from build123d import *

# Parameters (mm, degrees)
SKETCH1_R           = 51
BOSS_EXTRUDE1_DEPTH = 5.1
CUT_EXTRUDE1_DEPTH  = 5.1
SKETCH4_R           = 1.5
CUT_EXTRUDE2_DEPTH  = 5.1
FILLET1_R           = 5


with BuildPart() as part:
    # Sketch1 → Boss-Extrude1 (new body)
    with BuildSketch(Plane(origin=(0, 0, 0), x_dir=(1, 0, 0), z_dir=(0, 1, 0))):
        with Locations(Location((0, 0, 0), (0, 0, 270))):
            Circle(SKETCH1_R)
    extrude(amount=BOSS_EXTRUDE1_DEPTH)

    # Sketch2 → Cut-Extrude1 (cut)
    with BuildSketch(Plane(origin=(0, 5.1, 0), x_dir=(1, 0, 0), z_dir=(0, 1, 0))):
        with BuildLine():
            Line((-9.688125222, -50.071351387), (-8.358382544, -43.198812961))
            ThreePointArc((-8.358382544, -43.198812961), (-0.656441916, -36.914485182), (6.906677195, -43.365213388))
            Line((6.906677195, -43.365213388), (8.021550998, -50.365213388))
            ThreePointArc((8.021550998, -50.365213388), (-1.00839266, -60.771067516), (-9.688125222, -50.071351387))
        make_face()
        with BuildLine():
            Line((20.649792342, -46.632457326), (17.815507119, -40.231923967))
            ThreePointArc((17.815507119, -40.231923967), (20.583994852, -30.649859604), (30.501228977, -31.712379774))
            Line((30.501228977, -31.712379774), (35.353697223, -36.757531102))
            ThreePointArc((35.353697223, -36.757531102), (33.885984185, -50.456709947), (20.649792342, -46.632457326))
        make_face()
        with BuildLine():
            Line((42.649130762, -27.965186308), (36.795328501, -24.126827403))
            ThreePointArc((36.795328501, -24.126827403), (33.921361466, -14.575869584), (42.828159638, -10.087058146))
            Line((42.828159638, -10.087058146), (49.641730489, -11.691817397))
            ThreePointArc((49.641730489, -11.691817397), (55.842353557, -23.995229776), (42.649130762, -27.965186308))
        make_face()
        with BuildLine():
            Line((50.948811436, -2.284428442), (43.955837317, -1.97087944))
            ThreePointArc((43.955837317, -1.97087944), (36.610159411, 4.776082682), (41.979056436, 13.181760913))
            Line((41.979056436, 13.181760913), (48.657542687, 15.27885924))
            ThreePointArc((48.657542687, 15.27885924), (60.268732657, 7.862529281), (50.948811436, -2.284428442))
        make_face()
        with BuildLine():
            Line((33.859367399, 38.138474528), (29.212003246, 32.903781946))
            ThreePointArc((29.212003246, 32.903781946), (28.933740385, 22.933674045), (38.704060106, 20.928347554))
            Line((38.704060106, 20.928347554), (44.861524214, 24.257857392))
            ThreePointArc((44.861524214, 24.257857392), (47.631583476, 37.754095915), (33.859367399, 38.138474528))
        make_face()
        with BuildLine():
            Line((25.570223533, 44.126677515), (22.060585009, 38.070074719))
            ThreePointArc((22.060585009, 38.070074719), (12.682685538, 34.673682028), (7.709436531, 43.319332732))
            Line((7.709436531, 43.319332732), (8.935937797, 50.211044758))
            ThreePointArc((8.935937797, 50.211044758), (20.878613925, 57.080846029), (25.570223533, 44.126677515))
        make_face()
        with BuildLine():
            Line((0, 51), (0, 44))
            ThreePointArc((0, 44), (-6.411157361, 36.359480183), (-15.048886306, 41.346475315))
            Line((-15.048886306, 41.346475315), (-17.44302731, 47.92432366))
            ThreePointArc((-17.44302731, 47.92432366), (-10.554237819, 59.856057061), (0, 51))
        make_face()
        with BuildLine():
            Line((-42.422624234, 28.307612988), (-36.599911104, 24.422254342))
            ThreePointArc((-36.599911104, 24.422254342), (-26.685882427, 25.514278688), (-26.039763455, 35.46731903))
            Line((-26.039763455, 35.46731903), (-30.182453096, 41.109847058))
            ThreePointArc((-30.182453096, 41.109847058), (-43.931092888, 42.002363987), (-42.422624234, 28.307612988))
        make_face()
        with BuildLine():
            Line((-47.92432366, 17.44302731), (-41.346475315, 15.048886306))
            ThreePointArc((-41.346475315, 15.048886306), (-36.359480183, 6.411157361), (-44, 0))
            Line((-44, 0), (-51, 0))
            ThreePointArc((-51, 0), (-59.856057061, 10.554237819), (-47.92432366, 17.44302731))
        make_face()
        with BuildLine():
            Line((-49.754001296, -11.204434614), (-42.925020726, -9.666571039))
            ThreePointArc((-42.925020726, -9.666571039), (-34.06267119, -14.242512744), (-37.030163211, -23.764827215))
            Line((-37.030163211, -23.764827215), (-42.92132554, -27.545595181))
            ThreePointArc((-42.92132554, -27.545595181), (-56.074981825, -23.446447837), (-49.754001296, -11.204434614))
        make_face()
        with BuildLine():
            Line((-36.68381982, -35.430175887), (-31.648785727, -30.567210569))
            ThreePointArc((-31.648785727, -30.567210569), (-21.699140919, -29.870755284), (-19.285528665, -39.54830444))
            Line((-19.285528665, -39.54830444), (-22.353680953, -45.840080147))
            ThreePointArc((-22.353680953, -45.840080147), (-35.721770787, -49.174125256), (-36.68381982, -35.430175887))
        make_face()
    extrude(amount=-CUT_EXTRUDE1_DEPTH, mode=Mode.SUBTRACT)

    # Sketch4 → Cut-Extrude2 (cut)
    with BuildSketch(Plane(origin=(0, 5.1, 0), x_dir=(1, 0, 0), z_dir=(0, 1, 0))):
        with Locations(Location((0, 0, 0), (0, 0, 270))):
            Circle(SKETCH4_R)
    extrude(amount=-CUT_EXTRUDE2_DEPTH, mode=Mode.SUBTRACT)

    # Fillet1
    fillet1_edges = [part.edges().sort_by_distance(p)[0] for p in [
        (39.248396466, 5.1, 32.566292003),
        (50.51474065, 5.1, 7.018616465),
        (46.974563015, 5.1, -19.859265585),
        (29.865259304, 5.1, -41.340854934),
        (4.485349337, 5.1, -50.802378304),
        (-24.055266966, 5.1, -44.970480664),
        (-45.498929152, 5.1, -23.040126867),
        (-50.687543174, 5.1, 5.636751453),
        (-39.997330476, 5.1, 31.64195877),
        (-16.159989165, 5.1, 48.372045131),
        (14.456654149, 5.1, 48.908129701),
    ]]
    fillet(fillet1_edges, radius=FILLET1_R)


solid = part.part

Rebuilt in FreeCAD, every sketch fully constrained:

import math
import FreeCAD as App
import Part
import Sketcher

V = App.Vector
Q = App.Units.Quantity


def edges_at(feature, points):
    """Names of the edges that pass closest to the given points."""
    edges = feature.Shape.Edges
    near = lambda p: min(range(len(edges)), key=lambda i: edges[i].distToShape(Part.Vertex(*p))[0])
    return sorted({f"Edge{near(p) + 1}" for p in points})

doc = App.newDocument("Part")
body = doc.addObject("PartDesign::Body", "Body")

# Sketch on XZ plane
sketch1 = body.newObject("Sketcher::SketchObject", "Sketch")
sketch1.AttachmentSupport = (doc.getObject("XZ_Plane"), [""])
sketch1.MapMode = "FlatFace"
sketch1.addGeometry(Part.Circle(V(0, 0, 0), V(0, 0, 1), 51), False)
sketch1.addConstraint(Sketcher.Constraint("Coincident", 0, 3, -1, 1))
sketch1.addConstraint(Sketcher.Constraint("Diameter", 0, Q("102 mm")))
pad1 = body.newObject("PartDesign::Pad", "Pad")
pad1.Profile = sketch1
pad1.Length = 5.1
pad1.Reversed = True

# Sketch on XZ plane
sketch2 = body.newObject("Sketcher::SketchObject", "Sketch001")
sketch2.AttachmentSupport = (doc.getObject("XZ_Plane"), [""])
sketch2.MapMode = "FlatFace"
sketch2.AttachmentOffset = App.Placement(V(0, 0, -5.1), App.Rotation())
sketch2.addGeometry(Part.LineSegment(V(-8.358383, 43.198813, 0), V(-9.688125, 50.071351, 0)), False)
sketch2.addGeometry(Part.ArcOfCircle(Part.Circle(V(-0.859195, 51.779629, 0), V(0, 0, 1), 8.992676), math.radians(-9.049361), math.radians(190.950639)), False)
sketch2.addGeometry(Part.LineSegment(V(8.021551, 50.365213, 0), V(6.906677, 43.365213, 0)), False)
sketch2.addGeometry(Part.ArcOfCircle(Part.Circle(V(-0.741012, 44.672671, 0), V(0, 0, 1), 7.758646), math.radians(-169.049361), math.radians(-9.701556)), False)
sketch2.addGeometry(Part.LineSegment(V(17.815507, 40.231924, 0), V(20.649792, 46.632457, 0)), False)
sketch2.addGeometry(Part.ArcOfCircle(Part.Circle(V(28.872353, 42.991342, 0), V(0, 0, 1), 8.992676), math.radians(-43.884728), math.radians(156.115271)), False)
sketch2.addGeometry(Part.LineSegment(V(35.353697, 36.757531, 0), V(30.501229, 31.71238, 0)), False)
sketch2.addGeometry(Part.ArcOfCircle(Part.Circle(V(24.909481, 37.090569, 0), V(0, 0, 1), 7.758387), math.radians(156.115271), math.radians(316.115272)), False)
sketch2.addGeometry(Part.LineSegment(V(36.795329, 24.126827, 0), V(42.649131, 27.965186, 0)), False)
sketch2.addGeometry(Part.ArcOfCircle(Part.Circle(V(47.580148, 20.444994, 0), V(0, 0, 1), 8.992676), math.radians(-76.747002), math.radians(123.252998)), False)
sketch2.addGeometry(Part.LineSegment(V(49.64173, 11.691817, 0), V(42.82816, 10.087058, 0)), False)
sketch2.addGeometry(Part.ArcOfCircle(Part.Circle(V(41.049539, 17.638818, 0), V(0, 0, 1), 7.758387), math.radians(123.252998), math.radians(283.252998)), False)
sketch2.addGeometry(Part.LineSegment(V(43.955837, 1.970879, 0), V(50.948811, 2.284428, 0)), False)
sketch2.addGeometry(Part.ArcOfCircle(Part.Circle(V(51.351618, -6.699222, 0), V(0, 0, 1), 8.992676), math.radians(-107.432708), math.radians(92.567292)), False)
sketch2.addGeometry(Part.LineSegment(V(48.657543, -15.278859, 0), V(41.979056, -13.181761, 0)), False)
sketch2.addGeometry(Part.ArcOfCircle(Part.Circle(V(44.303357, -5.779721, 0), V(0, 0, 1), 7.758387), math.radians(92.567292), math.radians(252.567292)), False)
sketch2.addGeometry(Part.LineSegment(V(33.859367, -38.138475, 0), V(29.212003, -32.903782, 0)), False)
sketch2.addGeometry(Part.ArcOfCircle(Part.Circle(V(35.013828, -27.752918, 0), V(0, 0, 1), 7.758387), math.radians(61.598694), math.radians(221.598694)), False)
sketch2.addGeometry(Part.LineSegment(V(38.70406, -20.928348, 0), V(44.861524, -24.257857, 0)), False)
sketch2.addGeometry(Part.ArcOfCircle(Part.Circle(V(40.584209, -32.168155, 0), V(0, 0, 1), 8.992676), math.radians(-138.401306), math.radians(61.598694)), False)
sketch2.addGeometry(Part.LineSegment(V(22.060585, -38.070075, 0), V(25.570224, -44.126678, 0)), False)
sketch2.addGeometry(Part.ArcOfCircle(Part.Circle(V(17.7895, -48.635398, 0), V(0, 0, 1), 8.992676), math.radians(-169.908861), math.radians(30.091139)), False)
sketch2.addGeometry(Part.LineSegment(V(8.935938, -50.211045, 0), V(7.709437, -43.319333, 0)), False)
sketch2.addGeometry(Part.ArcOfCircle(Part.Circle(V(15.347804, -41.959951, 0), V(0, 0, 1), 7.758387), math.radians(30.091139), math.radians(190.091139)), False)
sketch2.addGeometry(Part.LineSegment(V(0, -44, 0), V(0, -51, 0)), False)
sketch2.addGeometry(Part.ArcOfCircle(Part.Circle(V(-8.992676, -51, 0), V(0, 0, 1), 8.992676), math.radians(160), math.radians(360)), False)
sketch2.addGeometry(Part.LineSegment(V(-17.443027, -47.924324, 0), V(-15.048886, -41.346475, 0)), False)
sketch2.addGeometry(Part.ArcOfCircle(Part.Circle(V(-7.758387, -44, 0), V(0, 0, 1), 7.758387), math.radians(0), math.radians(160)), False)
sketch2.addGeometry(Part.LineSegment(V(-42.422624, -28.307613, 0), V(-36.599911, -24.422254, 0)), False)
sketch2.addGeometry(Part.ArcOfCircle(Part.Circle(V(-32.293609, -30.875806, 0), V(0, 0, 1), 7.758387), math.radians(-36.285756), math.radians(123.714244)), False)
sketch2.addGeometry(Part.LineSegment(V(-26.039763, -35.467319, 0), V(-30.182453, -41.109847, 0)), False)
sketch2.addGeometry(Part.ArcOfCircle(Part.Circle(V(-37.431228, -35.787866, 0), V(0, 0, 1), 8.992676), math.radians(123.714244), math.radians(323.714244)), False)
sketch2.addGeometry(Part.LineSegment(V(-41.346475, -15.048886, 0), V(-47.924324, -17.443027, 0)), False)
sketch2.addGeometry(Part.ArcOfCircle(Part.Circle(V(-51, -8.992676, 0), V(0, 0, 1), 8.992676), math.radians(90), math.radians(290)), False)
sketch2.addGeometry(Part.LineSegment(V(-51, 0, 0), V(-44, 0, 0)), False)
sketch2.addGeometry(Part.ArcOfCircle(Part.Circle(V(-44, -7.758387, 0), V(0, 0, 1), 7.758387), math.radians(-70), math.radians(90)), False)
sketch2.addGeometry(Part.LineSegment(V(-42.925021, 9.666571, 0), V(-49.754001, 11.204435, 0)), False)
sketch2.addGeometry(Part.ArcOfCircle(Part.Circle(V(-47.778357, 19.977407, 0), V(0, 0, 1), 8.992676), math.radians(57.308892), math.radians(257.308892)), False)
sketch2.addGeometry(Part.LineSegment(V(-42.921326, 27.545595, 0), V(-37.030163, 23.764827, 0)), False)
sketch2.addGeometry(Part.ArcOfCircle(Part.Circle(V(-41.220543, 17.23541, 0), V(0, 0, 1), 7.758387), math.radians(-102.691108), math.radians(57.308892)), False)
sketch2.addGeometry(Part.LineSegment(V(-31.648786, 30.567211, 0), V(-36.68382, 35.430176, 0)), False)
sketch2.addGeometry(Part.ArcOfCircle(Part.Circle(V(-30.436524, 41.898523, 0), V(0, 0, 1), 8.992676), math.radians(25.995941), math.radians(225.995941)), False)
sketch2.addGeometry(Part.LineSegment(V(-22.353681, 45.84008, 0), V(-19.285529, 39.548304, 0)), False)
sketch2.addGeometry(Part.ArcOfCircle(Part.Circle(V(-26.258962, 36.147745, 0), V(0, 0, 1), 7.758387), math.radians(-134.004059), math.radians(25.995941)), False)
sketch2.addConstraint(Sketcher.Constraint("Coincident", 0, 2, 1, 2))
sketch2.addConstraint(Sketcher.Constraint("Coincident", 1, 1, 2, 1))
sketch2.addConstraint(Sketcher.Constraint("Coincident", 2, 2, 3, 2))
sketch2.addConstraint(Sketcher.Constraint("Coincident", 3, 1, 0, 1))
sketch2.addConstraint(Sketcher.Constraint("Coincident", 4, 2, 5, 2))
sketch2.addConstraint(Sketcher.Constraint("Coincident", 5, 1, 6, 1))
sketch2.addConstraint(Sketcher.Constraint("Coincident", 6, 2, 7, 2))
sketch2.addConstraint(Sketcher.Constraint("Coincident", 7, 1, 4, 1))
sketch2.addConstraint(Sketcher.Constraint("Coincident", 8, 2, 9, 2))
sketch2.addConstraint(Sketcher.Constraint("Coincident", 9, 1, 10, 1))
sketch2.addConstraint(Sketcher.Constraint("Coincident", 10, 2, 11, 2))
sketch2.addConstraint(Sketcher.Constraint("Coincident", 11, 1, 8, 1))
sketch2.addConstraint(Sketcher.Constraint("Coincident", 12, 2, 13, 2))
sketch2.addConstraint(Sketcher.Constraint("Coincident", 13, 1, 14, 1))
sketch2.addConstraint(Sketcher.Constraint("Coincident", 14, 2, 15, 2))
sketch2.addConstraint(Sketcher.Constraint("Coincident", 15, 1, 12, 1))
sketch2.addConstraint(Sketcher.Constraint("Coincident", 16, 2, 17, 2))
sketch2.addConstraint(Sketcher.Constraint("Coincident", 17, 1, 18, 1))
sketch2.addConstraint(Sketcher.Constraint("Coincident", 18, 2, 19, 2))
sketch2.addConstraint(Sketcher.Constraint("Coincident", 19, 1, 16, 1))
sketch2.addConstraint(Sketcher.Constraint("Coincident", 20, 2, 21, 2))
sketch2.addConstraint(Sketcher.Constraint("Coincident", 21, 1, 22, 1))
sketch2.addConstraint(Sketcher.Constraint("Coincident", 22, 2, 23, 2))
sketch2.addConstraint(Sketcher.Constraint("Coincident", 23, 1, 20, 1))
sketch2.addConstraint(Sketcher.Constraint("Coincident", 24, 2, 25, 2))
sketch2.addConstraint(Sketcher.Constraint("Coincident", 25, 1, 26, 1))
sketch2.addConstraint(Sketcher.Constraint("Coincident", 26, 2, 27, 2))
sketch2.addConstraint(Sketcher.Constraint("Coincident", 27, 1, 24, 1))
sketch2.addConstraint(Sketcher.Constraint("Coincident", 28, 2, 29, 2))
sketch2.addConstraint(Sketcher.Constraint("Coincident", 29, 1, 30, 1))
sketch2.addConstraint(Sketcher.Constraint("Coincident", 30, 2, 31, 2))
sketch2.addConstraint(Sketcher.Constraint("Coincident", 31, 1, 28, 1))
sketch2.addConstraint(Sketcher.Constraint("Coincident", 32, 2, 33, 2))
sketch2.addConstraint(Sketcher.Constraint("Coincident", 33, 1, 34, 1))
sketch2.addConstraint(Sketcher.Constraint("Coincident", 34, 2, 35, 2))
sketch2.addConstraint(Sketcher.Constraint("Coincident", 35, 1, 32, 1))
sketch2.addConstraint(Sketcher.Constraint("Coincident", 36, 2, 37, 2))
sketch2.addConstraint(Sketcher.Constraint("Coincident", 37, 1, 38, 1))
sketch2.addConstraint(Sketcher.Constraint("Coincident", 38, 2, 39, 2))
sketch2.addConstraint(Sketcher.Constraint("Coincident", 39, 1, 36, 1))
sketch2.addConstraint(Sketcher.Constraint("Coincident", 40, 2, 41, 2))
sketch2.addConstraint(Sketcher.Constraint("Coincident", 41, 1, 42, 1))
sketch2.addConstraint(Sketcher.Constraint("Coincident", 42, 2, 43, 2))
sketch2.addConstraint(Sketcher.Constraint("Coincident", 43, 1, 40, 1))
sketch2.addConstraint(Sketcher.Constraint("Vertical", 24))
sketch2.addConstraint(Sketcher.Constraint("Horizontal", 34))
sketch2.addConstraint(Sketcher.Constraint("PointOnObject", 24, 2, -2))
sketch2.addConstraint(Sketcher.Constraint("PointOnObject", 33, 1, -1))
sketch2.addConstraint(Sketcher.Constraint("DistanceX", 34, 1, 34, 2, Q("7 mm")))
sketch2.addConstraint(Sketcher.Constraint("DistanceY", 24, 2, 24, 1, Q("7 mm")))
sketch2.addConstraint(Sketcher.Constraint("Distance", 0, Q("7 mm")))
sketch2.addConstraint(Sketcher.Constraint("Distance", 4, Q("7 mm")))
sketch2.addConstraint(Sketcher.Constraint("Distance", 6, Q("7 mm")))
sketch2.addConstraint(Sketcher.Constraint("Distance", 8, Q("7 mm")))
sketch2.addConstraint(Sketcher.Constraint("Distance", 10, Q("7 mm")))
sketch2.addConstraint(Sketcher.Constraint("Distance", 12, Q("7 mm")))
sketch2.addConstraint(Sketcher.Constraint("Distance", 14, Q("7 mm")))
sketch2.addConstraint(Sketcher.Constraint("Distance", 16, Q("7 mm")))
sketch2.addConstraint(Sketcher.Constraint("Distance", 18, Q("7 mm")))
sketch2.addConstraint(Sketcher.Constraint("Distance", 20, Q("7 mm")))
sketch2.addConstraint(Sketcher.Constraint("Distance", 22, Q("7 mm")))
sketch2.addConstraint(Sketcher.Constraint("Distance", 26, Q("7 mm")))
sketch2.addConstraint(Sketcher.Constraint("Distance", 28, Q("7 mm")))
sketch2.addConstraint(Sketcher.Constraint("Distance", 30, Q("7 mm")))
sketch2.addConstraint(Sketcher.Constraint("Distance", 32, Q("7 mm")))
sketch2.addConstraint(Sketcher.Constraint("Distance", 36, Q("7 mm")))
sketch2.addConstraint(Sketcher.Constraint("Distance", 38, Q("7 mm")))
sketch2.addConstraint(Sketcher.Constraint("Distance", 40, Q("7 mm")))
sketch2.addConstraint(Sketcher.Constraint("Distance", 42, Q("7 mm")))
sketch2.addConstraint(Sketcher.Constraint("DistanceY", 25, 3, -1, 1, Q("51 mm")))
sketch2.addConstraint(Sketcher.Constraint("DistanceY", 27, 3, -1, 1, Q("44 mm")))
sketch2.addConstraint(Sketcher.Constraint("DistanceX", 33, 3, -1, 1, Q("51 mm")))
sketch2.addConstraint(Sketcher.Constraint("DistanceX", 35, 3, -1, 1, Q("44 mm")))
sketch2.addConstraint(Sketcher.Constraint("DistanceY", 24, 2, -1, 1, Q("51 mm")))
sketch2.addConstraint(Sketcher.Constraint("DistanceX", 33, 1, -1, 1, Q("51 mm")))
sketch2.addConstraint(Sketcher.Constraint("DistanceX", 36, 2, -1, 1, Q("49.754001 mm")))
sketch2.addConstraint(Sketcher.Constraint("Radius", 1, Q("8.992676 mm")))
sketch2.addConstraint(Sketcher.Constraint("Radius", 3, Q("7.758646 mm")))
sketch2.addConstraint(Sketcher.Constraint("Radius", 5, Q("8.992676 mm")))
sketch2.addConstraint(Sketcher.Constraint("Radius", 7, Q("7.758387 mm")))
sketch2.addConstraint(Sketcher.Constraint("Radius", 9, Q("8.992676 mm")))
sketch2.addConstraint(Sketcher.Constraint("Radius", 11, Q("7.758387 mm")))
sketch2.addConstraint(Sketcher.Constraint("Radius", 13, Q("8.992676 mm")))
sketch2.addConstraint(Sketcher.Constraint("Radius", 15, Q("7.758387 mm")))
sketch2.addConstraint(Sketcher.Constraint("Radius", 17, Q("7.758387 mm")))
sketch2.addConstraint(Sketcher.Constraint("Radius", 19, Q("8.992676 mm")))
sketch2.addConstraint(Sketcher.Constraint("Radius", 21, Q("8.992676 mm")))
sketch2.addConstraint(Sketcher.Constraint("Radius", 23, Q("7.758387 mm")))
sketch2.addConstraint(Sketcher.Constraint("Radius", 25, Q("8.992676 mm")))
sketch2.addConstraint(Sketcher.Constraint("Radius", 27, Q("7.758387 mm")))
sketch2.addConstraint(Sketcher.Constraint("Radius", 29, Q("7.758387 mm")))
sketch2.addConstraint(Sketcher.Constraint("Radius", 31, Q("8.992676 mm")))
sketch2.addConstraint(Sketcher.Constraint("Radius", 33, Q("8.992676 mm")))
sketch2.addConstraint(Sketcher.Constraint("Radius", 35, Q("7.758387 mm")))
sketch2.addConstraint(Sketcher.Constraint("Radius", 37, Q("8.992676 mm")))
sketch2.addConstraint(Sketcher.Constraint("Radius", 39, Q("7.758387 mm")))
sketch2.addConstraint(Sketcher.Constraint("Radius", 41, Q("8.992676 mm")))
sketch2.addConstraint(Sketcher.Constraint("Radius", 43, Q("7.758387 mm")))
sketch2.addConstraint(Sketcher.Constraint("DistanceX", -1, 1, 21, 3, Q("17.7895 mm")))
sketch2.addConstraint(Sketcher.Constraint("DistanceY", -1, 1, 1, 3, Q("51.779629 mm")))
sketch2.addConstraint(Sketcher.Constraint("DistanceX", 3, 3, -1, 1, Q("0.741012 mm")))
sketch2.addConstraint(Sketcher.Constraint("DistanceY", -1, 1, 3, 3, Q("44.672671 mm")))
sketch2.addConstraint(Sketcher.Constraint("DistanceY", -1, 1, 5, 3, Q("42.991342 mm")))
sketch2.addConstraint(Sketcher.Constraint("DistanceX", -1, 1, 7, 3, Q("24.909481 mm")))
sketch2.addConstraint(Sketcher.Constraint("DistanceY", -1, 1, 7, 3, Q("37.090569 mm")))
sketch2.addConstraint(Sketcher.Constraint("DistanceX", -1, 1, 11, 3, Q("41.049539 mm")))
sketch2.addConstraint(Sketcher.Constraint("DistanceY", -1, 1, 11, 3, Q("17.638818 mm")))
sketch2.addConstraint(Sketcher.Constraint("DistanceY", 13, 3, -1, 1, Q("6.699222 mm")))
sketch2.addConstraint(Sketcher.Constraint("DistanceY", 15, 3, -1, 1, Q("5.779721 mm")))
sketch2.addConstraint(Sketcher.Constraint("DistanceX", -1, 1, 19, 3, Q("40.584209 mm")))
sketch2.addConstraint(Sketcher.Constraint("DistanceY", 23, 3, -1, 1, Q("41.959951 mm")))
sketch2.addConstraint(Sketcher.Constraint("DistanceX", 29, 3, -1, 1, Q("32.293609 mm")))
sketch2.addConstraint(Sketcher.Constraint("DistanceX", 31, 3, -1, 1, Q("37.431228 mm")))
sketch2.addConstraint(Sketcher.Constraint("DistanceY", -1, 1, 39, 3, Q("17.23541 mm")))
sketch2.addConstraint(Sketcher.Constraint("DistanceX", 43, 3, -1, 1, Q("26.258962 mm")))
sketch2.addConstraint(Sketcher.Constraint("DistanceY", -1, 1, 0, 2, Q("50.071351 mm")))
sketch2.addConstraint(Sketcher.Constraint("DistanceX", -1, 1, 1, 1, Q("8.021551 mm")))
sketch2.addConstraint(Sketcher.Constraint("DistanceY", -1, 1, 5, 1, Q("36.757531 mm")))
sketch2.addConstraint(Sketcher.Constraint("DistanceX", -1, 1, 6, 2, Q("30.501229 mm")))
sketch2.addConstraint(Sketcher.Constraint("DistanceX", -1, 1, 8, 2, Q("42.649131 mm")))
sketch2.addConstraint(Sketcher.Constraint("DistanceX", -1, 1, 9, 1, Q("49.64173 mm")))
sketch2.addConstraint(Sketcher.Constraint("DistanceX", -1, 1, 10, 2, Q("42.82816 mm")))
sketch2.addConstraint(Sketcher.Constraint("DistanceX", -1, 1, 11, 1, Q("36.795329 mm")))
sketch2.addConstraint(Sketcher.Constraint("DistanceX", -1, 1, 12, 2, Q("50.948811 mm")))
sketch2.addConstraint(Sketcher.Constraint("DistanceY", -1, 1, 12, 2, Q("2.284428 mm")))
sketch2.addConstraint(Sketcher.Constraint("DistanceY", 13, 1, -1, 1, Q("15.278859 mm")))
sketch2.addConstraint(Sketcher.Constraint("DistanceY", 14, 2, -1, 1, Q("13.181761 mm")))
sketch2.addConstraint(Sketcher.Constraint("DistanceY", 16, 2, -1, 1, Q("32.903782 mm")))
sketch2.addConstraint(Sketcher.Constraint("DistanceX", -1, 1, 17, 1, Q("38.70406 mm")))
sketch2.addConstraint(Sketcher.Constraint("DistanceX", 28, 2, -1, 1, Q("36.599911 mm")))
sketch2.addConstraint(Sketcher.Constraint("DistanceY", 29, 1, -1, 1, Q("35.467319 mm")))
sketch2.addConstraint(Sketcher.Constraint("DistanceX", 39, 1, -1, 1, Q("42.925021 mm")))
sketch2.addConstraint(Sketcher.Constraint("DistanceY", -1, 1, 39, 1, Q("9.666571 mm")))
sketch2.addConstraint(Sketcher.Constraint("DistanceX", 40, 2, -1, 1, Q("36.68382 mm")))
sketch2.addConstraint(Sketcher.Constraint("DistanceX", 41, 1, -1, 1, Q("22.353681 mm")))
sketch2.addConstraint(Sketcher.Constraint("DistanceY", -1, 1, 41, 1, Q("45.84008 mm")))
sketch2.addConstraint(Sketcher.Constraint("DistanceX", 42, 2, -1, 1, Q("19.285529 mm")))
sketch2.addConstraint(Sketcher.Constraint("DistanceY", -1, 1, 43, 1, Q("30.567211 mm")))
sketch2.addConstraint(Sketcher.Constraint("Distance", 2, Q("7.088226 mm")))
sketch2.addConstraint(Sketcher.Constraint("DistanceX", 1, 3, -1, 1, Q("0.859195 mm")))
sketch2.addConstraint(Sketcher.Constraint("DistanceX", -1, 1, 17, 3, Q("35.013828 mm")))
sketch2.addConstraint(Sketcher.Constraint("DistanceY", 17, 3, -1, 1, Q("27.752918 mm")))
sketch2.addConstraint(Sketcher.Constraint("DistanceY", 19, 3, -1, 1, Q("32.168155 mm")))
sketch2.addConstraint(Sketcher.Constraint("DistanceY", 21, 3, -1, 1, Q("48.635398 mm")))
sketch2.addConstraint(Sketcher.Constraint("DistanceX", -1, 1, 23, 3, Q("15.347804 mm")))
sketch2.addConstraint(Sketcher.Constraint("DistanceY", 29, 3, -1, 1, Q("30.875806 mm")))
sketch2.addConstraint(Sketcher.Constraint("DistanceY", 31, 3, -1, 1, Q("35.787866 mm")))
sketch2.addConstraint(Sketcher.Constraint("DistanceX", 37, 3, -1, 1, Q("47.778357 mm")))
sketch2.addConstraint(Sketcher.Constraint("DistanceX", -1, 1, 4, 2, Q("20.649792 mm")))
sketch2.addConstraint(Sketcher.Constraint("DistanceX", -1, 1, 20, 2, Q("25.570224 mm")))
sketch2.addConstraint(Sketcher.Constraint("DistanceX", -1, 1, 21, 1, Q("8.935938 mm")))
sketch2.addConstraint(Sketcher.Constraint("DistanceX", 25, 1, -1, 1, Q("17.443027 mm")))
sketch2.addConstraint(Sketcher.Constraint("DistanceX", 32, 2, -1, 1, Q("47.924324 mm")))
sketch2.addConstraint(Sketcher.Constraint("DistanceX", 37, 1, -1, 1, Q("42.921326 mm")))
pocket1 = body.newObject("PartDesign::Pocket", "Pocket")
pocket1.Profile = sketch2
pocket1.Length = 5.1
pocket1.Reversed = True

# Sketch on XZ plane
sketch3 = body.newObject("Sketcher::SketchObject", "Sketch002")
sketch3.AttachmentSupport = (doc.getObject("XZ_Plane"), [""])
sketch3.MapMode = "FlatFace"
sketch3.AttachmentOffset = App.Placement(V(0, 0, -5.1), App.Rotation())
sketch3.addGeometry(Part.Circle(V(0, 0, 0), V(0, 0, 1), 1.5), False)
sketch3.addConstraint(Sketcher.Constraint("Coincident", 0, 3, -1, 1))
sketch3.addConstraint(Sketcher.Constraint("Diameter", 0, Q("3 mm")))
pocket2 = body.newObject("PartDesign::Pocket", "Pocket001")
pocket2.Profile = sketch3
pocket2.Length = 5.1
pocket2.Reversed = True
doc.recompute()

fillet = body.newObject("PartDesign::Fillet", "Fillet")
fillet.Base = (pocket2, edges_at(pocket2, [
    (39.248, 5.1, 32.566),
    (50.515, 5.1, 7.019),
    (46.975, 5.1, -19.859),
    (29.865, 5.1, -41.341),
    (4.485, 5.1, -50.802),
    (-24.055, 5.1, -44.97),
    (-45.499, 5.1, -23.04),
    (-50.688, 5.1, 5.637),
    (-39.997, 5.1, 31.642),
    (-16.16, 5.1, 48.372),
    (14.457, 5.1, 48.908),
]))
fillet.Radius = 5

doc.recompute()
